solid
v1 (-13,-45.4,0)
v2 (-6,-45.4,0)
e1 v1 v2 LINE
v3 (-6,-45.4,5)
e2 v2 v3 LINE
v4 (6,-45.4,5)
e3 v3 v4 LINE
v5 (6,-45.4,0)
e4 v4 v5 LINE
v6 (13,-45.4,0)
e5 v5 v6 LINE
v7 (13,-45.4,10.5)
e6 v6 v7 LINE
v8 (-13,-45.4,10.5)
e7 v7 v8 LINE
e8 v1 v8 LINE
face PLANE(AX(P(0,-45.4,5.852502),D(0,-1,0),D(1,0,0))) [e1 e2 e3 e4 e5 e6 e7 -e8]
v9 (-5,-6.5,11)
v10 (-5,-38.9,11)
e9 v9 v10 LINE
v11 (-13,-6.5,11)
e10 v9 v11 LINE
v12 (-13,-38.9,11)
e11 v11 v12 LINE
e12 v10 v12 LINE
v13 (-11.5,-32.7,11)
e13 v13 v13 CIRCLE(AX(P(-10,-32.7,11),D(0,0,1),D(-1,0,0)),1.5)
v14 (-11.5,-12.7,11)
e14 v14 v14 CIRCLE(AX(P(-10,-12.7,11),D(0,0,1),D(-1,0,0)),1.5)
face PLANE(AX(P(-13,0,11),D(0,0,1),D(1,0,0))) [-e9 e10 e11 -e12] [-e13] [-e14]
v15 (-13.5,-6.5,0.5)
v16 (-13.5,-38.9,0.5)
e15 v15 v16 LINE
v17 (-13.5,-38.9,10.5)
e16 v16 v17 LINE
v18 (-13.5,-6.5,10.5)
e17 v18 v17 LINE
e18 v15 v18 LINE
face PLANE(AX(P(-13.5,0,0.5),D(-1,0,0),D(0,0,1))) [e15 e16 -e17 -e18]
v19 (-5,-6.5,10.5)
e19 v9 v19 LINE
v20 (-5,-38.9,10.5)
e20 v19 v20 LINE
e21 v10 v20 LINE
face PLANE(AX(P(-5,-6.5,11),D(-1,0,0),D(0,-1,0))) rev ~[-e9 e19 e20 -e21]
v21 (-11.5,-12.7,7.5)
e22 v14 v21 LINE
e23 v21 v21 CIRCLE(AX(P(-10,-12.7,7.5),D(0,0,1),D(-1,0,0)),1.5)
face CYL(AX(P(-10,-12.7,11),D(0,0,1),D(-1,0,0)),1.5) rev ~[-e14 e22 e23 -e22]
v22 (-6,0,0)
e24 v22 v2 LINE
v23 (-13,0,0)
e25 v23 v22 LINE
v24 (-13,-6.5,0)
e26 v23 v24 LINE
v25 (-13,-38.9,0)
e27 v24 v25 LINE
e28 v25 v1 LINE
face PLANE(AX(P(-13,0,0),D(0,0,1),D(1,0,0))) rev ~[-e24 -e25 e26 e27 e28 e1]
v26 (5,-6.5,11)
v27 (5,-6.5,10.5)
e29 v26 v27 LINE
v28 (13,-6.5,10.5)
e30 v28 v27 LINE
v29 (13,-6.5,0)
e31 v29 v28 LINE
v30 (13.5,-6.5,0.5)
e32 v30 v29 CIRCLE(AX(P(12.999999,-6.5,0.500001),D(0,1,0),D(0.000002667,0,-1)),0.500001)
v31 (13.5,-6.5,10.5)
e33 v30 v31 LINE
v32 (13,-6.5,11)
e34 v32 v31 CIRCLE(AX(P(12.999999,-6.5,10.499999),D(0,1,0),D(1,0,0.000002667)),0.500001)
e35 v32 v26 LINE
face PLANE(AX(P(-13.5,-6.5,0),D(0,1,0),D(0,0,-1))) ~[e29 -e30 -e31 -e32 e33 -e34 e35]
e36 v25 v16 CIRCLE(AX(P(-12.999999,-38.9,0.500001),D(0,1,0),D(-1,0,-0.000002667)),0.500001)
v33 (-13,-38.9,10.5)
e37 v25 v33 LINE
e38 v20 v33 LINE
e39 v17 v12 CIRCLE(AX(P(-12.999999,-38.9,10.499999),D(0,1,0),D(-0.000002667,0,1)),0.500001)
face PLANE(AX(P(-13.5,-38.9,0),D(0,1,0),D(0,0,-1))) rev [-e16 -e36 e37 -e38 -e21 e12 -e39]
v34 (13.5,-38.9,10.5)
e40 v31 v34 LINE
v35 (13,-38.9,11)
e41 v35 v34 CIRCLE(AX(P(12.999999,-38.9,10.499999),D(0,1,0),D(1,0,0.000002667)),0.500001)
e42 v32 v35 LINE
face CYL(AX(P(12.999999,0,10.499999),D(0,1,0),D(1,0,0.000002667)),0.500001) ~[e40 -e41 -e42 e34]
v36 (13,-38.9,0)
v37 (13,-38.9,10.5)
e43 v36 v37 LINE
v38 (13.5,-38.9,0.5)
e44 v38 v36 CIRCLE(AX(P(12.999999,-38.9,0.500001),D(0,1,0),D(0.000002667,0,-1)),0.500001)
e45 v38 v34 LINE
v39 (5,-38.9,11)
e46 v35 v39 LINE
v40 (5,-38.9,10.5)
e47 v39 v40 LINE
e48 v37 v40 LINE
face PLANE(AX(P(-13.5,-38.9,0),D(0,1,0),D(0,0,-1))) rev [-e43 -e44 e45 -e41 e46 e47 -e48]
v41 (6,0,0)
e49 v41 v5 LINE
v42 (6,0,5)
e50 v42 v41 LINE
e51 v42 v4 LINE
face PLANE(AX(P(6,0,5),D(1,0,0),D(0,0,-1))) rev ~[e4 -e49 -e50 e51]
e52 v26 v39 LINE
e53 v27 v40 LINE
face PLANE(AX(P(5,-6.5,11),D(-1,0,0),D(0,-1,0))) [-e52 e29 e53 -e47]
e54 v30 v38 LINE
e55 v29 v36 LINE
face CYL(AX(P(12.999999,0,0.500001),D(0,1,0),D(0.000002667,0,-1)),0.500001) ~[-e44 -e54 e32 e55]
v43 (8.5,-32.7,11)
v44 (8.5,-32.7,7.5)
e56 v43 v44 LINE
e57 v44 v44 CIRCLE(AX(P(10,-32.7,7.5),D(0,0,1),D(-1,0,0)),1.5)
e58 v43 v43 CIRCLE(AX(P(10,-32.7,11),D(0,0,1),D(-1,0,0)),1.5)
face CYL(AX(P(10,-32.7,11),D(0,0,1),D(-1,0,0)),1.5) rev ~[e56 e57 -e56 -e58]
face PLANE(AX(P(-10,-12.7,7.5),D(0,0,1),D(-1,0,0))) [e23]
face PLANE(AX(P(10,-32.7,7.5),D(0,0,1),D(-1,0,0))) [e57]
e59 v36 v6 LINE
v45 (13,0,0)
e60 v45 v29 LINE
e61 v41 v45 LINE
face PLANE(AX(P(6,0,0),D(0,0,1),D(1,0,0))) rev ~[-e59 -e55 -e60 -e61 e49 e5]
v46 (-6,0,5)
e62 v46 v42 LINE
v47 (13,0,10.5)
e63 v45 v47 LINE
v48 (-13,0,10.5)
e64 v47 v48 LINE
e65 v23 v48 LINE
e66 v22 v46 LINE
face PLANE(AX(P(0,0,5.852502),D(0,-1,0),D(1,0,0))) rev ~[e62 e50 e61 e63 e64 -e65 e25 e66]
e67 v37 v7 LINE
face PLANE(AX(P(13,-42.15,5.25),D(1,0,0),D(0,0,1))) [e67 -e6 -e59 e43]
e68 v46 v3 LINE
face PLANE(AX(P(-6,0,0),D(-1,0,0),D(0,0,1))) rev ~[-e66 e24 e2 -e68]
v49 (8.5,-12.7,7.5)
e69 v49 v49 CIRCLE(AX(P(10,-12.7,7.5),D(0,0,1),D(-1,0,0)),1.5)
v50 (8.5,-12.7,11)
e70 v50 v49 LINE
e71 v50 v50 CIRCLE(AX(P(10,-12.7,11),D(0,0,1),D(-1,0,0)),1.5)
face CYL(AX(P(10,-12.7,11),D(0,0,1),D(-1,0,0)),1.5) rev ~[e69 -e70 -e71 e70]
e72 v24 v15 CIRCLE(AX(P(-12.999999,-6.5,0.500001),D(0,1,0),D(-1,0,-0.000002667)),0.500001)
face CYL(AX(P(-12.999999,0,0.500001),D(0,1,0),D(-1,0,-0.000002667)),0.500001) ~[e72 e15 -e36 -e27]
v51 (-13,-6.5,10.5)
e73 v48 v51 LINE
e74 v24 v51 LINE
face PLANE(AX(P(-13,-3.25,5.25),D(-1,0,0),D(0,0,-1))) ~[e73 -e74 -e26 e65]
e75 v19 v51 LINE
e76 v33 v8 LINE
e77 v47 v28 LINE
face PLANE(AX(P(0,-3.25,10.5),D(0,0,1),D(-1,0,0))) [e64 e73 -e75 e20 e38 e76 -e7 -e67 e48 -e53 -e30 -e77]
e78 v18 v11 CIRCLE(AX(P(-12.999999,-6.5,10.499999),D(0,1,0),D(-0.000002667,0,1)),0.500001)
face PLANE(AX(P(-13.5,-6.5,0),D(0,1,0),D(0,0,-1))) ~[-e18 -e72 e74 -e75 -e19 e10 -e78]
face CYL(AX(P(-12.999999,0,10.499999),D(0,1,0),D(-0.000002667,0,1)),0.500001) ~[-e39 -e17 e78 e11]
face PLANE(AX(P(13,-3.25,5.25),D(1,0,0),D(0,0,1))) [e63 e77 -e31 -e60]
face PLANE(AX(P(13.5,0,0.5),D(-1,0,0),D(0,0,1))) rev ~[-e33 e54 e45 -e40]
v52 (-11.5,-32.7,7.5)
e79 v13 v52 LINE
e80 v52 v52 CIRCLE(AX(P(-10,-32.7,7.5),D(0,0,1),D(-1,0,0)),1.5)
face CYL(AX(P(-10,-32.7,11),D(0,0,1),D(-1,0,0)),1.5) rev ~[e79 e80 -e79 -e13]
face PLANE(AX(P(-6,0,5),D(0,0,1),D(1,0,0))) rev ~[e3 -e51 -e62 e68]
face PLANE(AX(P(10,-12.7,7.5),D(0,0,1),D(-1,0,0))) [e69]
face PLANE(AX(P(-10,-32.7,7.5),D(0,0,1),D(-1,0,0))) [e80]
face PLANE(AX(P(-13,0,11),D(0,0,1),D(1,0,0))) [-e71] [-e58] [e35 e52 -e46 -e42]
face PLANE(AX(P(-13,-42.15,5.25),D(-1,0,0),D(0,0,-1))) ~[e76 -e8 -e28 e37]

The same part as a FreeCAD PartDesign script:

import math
import FreeCAD as App
import Part
import Sketcher

V = App.Vector
Q = App.Units.Quantity


def add_polygon(sketch, points):
    """Adds a closed chain of lines whose ends are joined by coincident constraints."""
    first, n = sketch.GeometryCount, len(points)
    for a, b in zip(points, points[1:] + points[:1]):
        sketch.addGeometry(Part.LineSegment(App.Vector(*a, 0), App.Vector(*b, 0)), False)
    for i in range(n):
        sketch.addConstraint(Sketcher.Constraint("Coincident", first + i, 2, first + (i + 1) % n, 1))

doc = App.newDocument("Part")
body = doc.addObject("PartDesign::Body", "Body")

sketch1 = doc.addObject("Sketcher::SketchObject", "Sketch")
body.addObject(sketch1)
sketch1.AttachmentSupport = (doc.XZ_Plane, [""])
sketch1.MapMode = "FlatFace"
sketch1.addGeometry(Part.LineSegment(V(-13, 0, 0), V(-6, 0, 0)), False)
sketch1.addGeometry(Part.LineSegment(V(-6, 0, 0), V(-6, 5, 0)), False)
sketch1.addGeometry(Part.LineSegment(V(-6, 5, 0), V(6, 5, 0)), False)
sketch1.addGeometry(Part.LineSegment(V(6, 5, 0), V(6, 0, 0)), False)
sketch1.addGeometry(Part.LineSegment(V(6, 0, 0), V(13, 0, 0)), False)
sketch1.addGeometry(Part.ArcOfCircle(Part.Circle(V(13, 0.5, 0), V(0, 0, 1), 0.5), math.radians(-90), math.radians(0)), False)
sketch1.addGeometry(Part.LineSegment(V(13.5, 0.5, 0), V(13.5, 10.5, 0)), False)
sketch1.addGeometry(Part.ArcOfCircle(Part.Circle(V(13, 10.5, 0), V(0, 0, 1), 0.5), math.radians(0), math.radians(90)), False)
sketch1.addGeometry(Part.LineSegment(V(13, 11, 0), V(-13, 11, 0)), False)
sketch1.addGeometry(Part.ArcOfCircle(Part.Circle(V(-13, 10.5, 0), V(0, 0, 1), 0.5), math.radians(90), math.radians(180)), False)
sketch1.addGeometry(Part.LineSegment(V(-13.5, 10.5, 0), V(-13.5, 0.5, 0)), False)
sketch1.addGeometry(Part.ArcOfCircle(Part.Circle(V(-13, 0.5, 0), V(0, 0, 1), 0.5), math.radians(-180), math.radians(-90)), False)
sketch1.addConstraint(Sketcher.Constraint("Coincident", 0, 2, 1, 1))
sketch1.addConstraint(Sketcher.Constraint("Coincident", 1, 2, 2, 1))
sketch1.addConstraint(Sketcher.Constraint("Coincident", 2, 2, 3, 1))
sketch1.addConstraint(Sketcher.Constraint("Coincident", 3, 2, 4, 1))
sketch1.addConstraint(Sketcher.Constraint("Coincident", 4, 2, 5, 1))
sketch1.addConstraint(Sketcher.Constraint("Coincident", 5, 2, 6, 1))
sketch1.addConstraint(Sketcher.Constraint("Coincident", 6, 2, 7, 1))
sketch1.addConstraint(Sketcher.Constraint("Coincident", 7, 2, 8, 1))
sketch1.addConstraint(Sketcher.Constraint("Coincident", 8, 2, 9, 1))
sketch1.addConstraint(Sketcher.Constraint("Coincident", 9, 2, 10, 1))
sketch1.addConstraint(Sketcher.Constraint("Coincident", 10, 2, 11, 1))
sketch1.addConstraint(Sketcher.Constraint("Coincident", 11, 2, 0, 1))
sketch1.addConstraint(Sketcher.Constraint("Horizontal", 0))
sketch1.addConstraint(Sketcher.Constraint("Vertical", 1))
sketch1.addConstraint(Sketcher.Constraint("Horizontal", 2))
sketch1.addConstraint(Sketcher.Constraint("Vertical", 3))
sketch1.addConstraint(Sketcher.Constraint("Horizontal", 4))
sketch1.addConstraint(Sketcher.Constraint("Vertical", 6))
sketch1.addConstraint(Sketcher.Constraint("Horizontal", 8))
sketch1.addConstraint(Sketcher.Constraint("Vertical", 10))
sketch1.addConstraint(Sketcher.Constraint("Equal", 5, 7))
sketch1.addConstraint(Sketcher.Constraint("Equal", 7, 9))
sketch1.addConstraint(Sketcher.Constraint("Equal", 9, 11))
sketch1.addConstraint(Sketcher.Constraint("Symmetric", 0, 2, 3, 2, -1, 1))
sketch1.addConstraint(Sketcher.Constraint("Symmetric", 5, 3, 11, 3, -2))
sketch1.addConstraint(Sketcher.Constraint("Horizontal", 11, 3, 5, 2))
sketch1.addConstraint(Sketcher.Constraint("Horizontal", 9, 3, 6, 2))
sketch1.addConstraint(Sketcher.Constraint("Horizontal", 6, 2, 9, 2))
sketch1.addConstraint(Sketcher.Constraint("Horizontal", 5, 2, 10, 2))
sketch1.addConstraint(Sketcher.Constraint("Vertical", 7, 3, 4, 2))
sketch1.addConstraint(Sketcher.Constraint("Vertical", 4, 2, 7, 2))
sketch1.addConstraint(Sketcher.Constraint("Vertical", 11, 3, 8, 2))
sketch1.addConstraint(Sketcher.Constraint("Vertical", 8, 2, 11, 2))
sketch1.addConstraint(Sketcher.Constraint("Radius", 5, Q("0.500001 mm")))
sketch1.addConstraint(Sketcher.Constraint("DistanceX", 0, 1, 0, 2, Q("7 mm")))
sketch1.addConstraint(Sketcher.Constraint("DistanceX", 2, 1, 2, 2, Q("12 mm")))
sketch1.addConstraint(Sketcher.Constraint("DistanceY", 1, 1, 1, 2, Q("5 mm")))
sketch1.addConstraint(Sketcher.Constraint("DistanceY", 6, 1, 6, 2, Q("10 mm")))
pad1 = doc.addObject("PartDesign::Pad", "Pad")
body.addObject(pad1)
pad1.Profile = sketch1
pad1.Length = 45.4

sketch2 = doc.addObject("Sketcher::SketchObject", "Sketch001")
body.addObject(sketch2)
sketch2.AttachmentSupport = (doc.XY_Plane, [""])
sketch2.MapMode = "FlatFace"
sketch2.AttachmentOffset = App.Placement(V(0, 0, 11), App.Rotation())
sketch2.addGeometry(Part.Circle(V(10, -12.7, 0), V(0, 0, 1), 1.5), False)
sketch2.addGeometry(Part.Circle(V(-10, -12.7, 0), V(0, 0, 1), 1.5), False)
sketch2.addGeometry(Part.Circle(V(10, -32.7, 0), V(0, 0, 1), 1.5), False)
sketch2.addGeometry(Part.Circle(V(-10, -32.7, 0), V(0, 0, 1), 1.5), False)
sketch2.addConstraint(Sketcher.Constraint("Equal", 0, 1))
sketch2.addConstraint(Sketcher.Constraint("Equal", 1, 2))
sketch2.addConstraint(Sketcher.Constraint("Equal", 2, 3))
sketch2.addConstraint(Sketcher.Constraint("Symmetric", 0, 3, 1, 3, -2))
sketch2.addConstraint(Sketcher.Constraint("Symmetric", 2, 3, 3, 3, -2))
sketch2.addConstraint(Sketcher.Constraint("Vertical", 0, 3, 2, 3))
sketch2.addConstraint(Sketcher.Constraint("Diameter", 0, Q("3 mm")))
sketch2.addConstraint(Sketcher.Constraint("DistanceX", -1, 1, 0, 3, Q("10 mm")))
sketch2.addConstraint(Sketcher.Constraint("DistanceY", 2, 3, 0, 3, Q("20 mm")))
sketch2.addConstraint(Sketcher.Constraint("DistanceY", 0, 3, -1, 1, Q("12.7 mm")))
pocket1 = doc.addObject("PartDesign::Pocket", "Pocket")
body.addObject(pocket1)
pocket1.Profile = sketch2
pocket1.Length = 3.5

sketch3 = doc.addObject("Sketcher::SketchObject", "Sketch002")
body.addObject(sketch3)
sketch3.AttachmentSupport = (doc.XY_Plane, [""])
sketch3.MapMode = "FlatFace"
sketch3.AttachmentOffset = App.Placement(V(0, 0, 11), App.Rotation())
add_polygon(sketch3, [(14, -6), (14, 0), (-14, 0), (-14, -6)])
add_polygon(sketch3, [(14, -45), (14, -39), (-14, -39), (-14, -45)])
sketch3.addConstraint(Sketcher.Constraint("Vertical", 0))
sketch3.addConstraint(Sketcher.Constraint("Horizontal", 1))
sketch3.addConstraint(Sketcher.Constraint("Vertical", 2))
sketch3.addConstraint(Sketcher.Constraint("Horizontal", 3))
sketch3.addConstraint(Sketcher.Constraint("Vertical", 4))
sketch3.addConstraint(Sketcher.Constraint("Horizontal", 5))
sketch3.addConstraint(Sketcher.Constraint("Vertical", 6))
sketch3.addConstraint(Sketcher.Constraint("Horizontal", 7))
sketch3.addConstraint(Sketcher.Constraint("Symmetric", 0, 2, 1, 2, -1, 1))
sketch3.addConstraint(Sketcher.Constraint("Vertical", 3, 2, 4, 2))
sketch3.addConstraint(Sketcher.Constraint("Vertical", 2, 2, 5, 2))
sketch3.addConstraint(Sketcher.Constraint("Equal", 2, 4))
sketch3.addConstraint(Sketcher.Constraint("DistanceX", 1, 2, 1, 1, Q("27 mm")))
sketch3.addConstraint(Sketcher.Constraint("DistanceY", 0, 1, 0, 2, Q("6.5 mm")))
sketch3.addConstraint(Sketcher.Constraint("DistanceY", 4, 2, -1, 1, Q("38.9 mm")))
pocket2 = doc.addObject("PartDesign::Pocket", "Pocket001")
body.addObject(pocket2)
pocket2.Profile = sketch3
pocket2.Length = 0.5

sketch4 = doc.addObject("Sketcher::SketchObject", "Sketch003")
body.addObject(sketch4)
sketch4.AttachmentSupport = (doc.YZ_Plane, [""])
sketch4.MapMode = "FlatFace"
sketch4.AttachmentOffset = App.Placement(V(0, 0, 13.5), App.Rotation())
add_polygon(sketch4, [(-45, 0), (-39, 0), (-39, 10), (-45, 10)])
add_polygon(sketch4, [(-6, 0), (0, 0), (0, 10), (-6, 10)])
sketch4.addConstraint(Sketcher.Constraint("Horizontal", 0))
sketch4.addConstraint(Sketcher.Constraint("Vertical", 1))
sketch4.addConstraint(Sketcher.Constraint("Horizontal", 2))
sketch4.addConstraint(Sketcher.Constraint("Vertical", 3))
sketch4.addConstraint(Sketcher.Constraint("Horizontal", 4))
sketch4.addConstraint(Sketcher.Constraint("Vertical", 5))
sketch4.addConstraint(Sketcher.Constraint("Horizontal", 6))
sketch4.addConstraint(Sketcher.Constraint("Vertical", 7))
sketch4.addConstraint(Sketcher.Constraint("Coincident", 4, 2, -1, 1))
sketch4.addConstraint(Sketcher.Constraint("PointOnObject", 0, 2, -1))
sketch4.addConstraint(Sketcher.Constraint("Horizontal", 2, 2, 5, 2))
sketch4.addConstraint(Sketcher.Constraint("Equal", 2, 4))
sketch4.addConstraint(Sketcher.Constraint("DistanceX", 0, 1, 0, 2, Q("6.5 mm")))
sketch4.addConstraint(Sketcher.Constraint("DistanceY", 1, 1, 1, 2, Q("10.5 mm")))
sketch4.addConstraint(Sketcher.Constraint("DistanceX", 0, 2, -1, 1, Q("38.9 mm")))
pocket3 = doc.addObject("PartDesign::Pocket", "Pocket002")
body.addObject(pocket3)
pocket3.Profile = sketch4
pocket3.Length = 0.5
doc.recompute()

mirrored = doc.addObject("PartDesign::Mirrored", "Mirrored")
body.addObject(mirrored)
mirrored.Originals = [pocket3]
mirrored.MirrorPlane = (doc.YZ_Plane, [""])
body.Tip = mirrored

sketch5 = doc.addObject("Sketcher::SketchObject", "Sketch004")
body.addObject(sketch5)
sketch5.AttachmentSupport = (doc.XY_Plane, [""])
sketch5.MapMode = "FlatFace"
sketch5.AttachmentOffset = App.Placement(V(0, 0, 11), App.Rotation())
add_polygon(sketch5, [(5, -39), (5, -6), (-5, -6), (-5, -39)])
sketch5.addConstraint(Sketcher.Constraint("Vertical", 0))
sketch5.addConstraint(Sketcher.Constraint("Horizontal", 1))
sketch5.addConstraint(Sketcher.Constraint("Vertical", 2))
sketch5.addConstraint(Sketcher.Constraint("Horizontal", 3))
sketch5.addConstraint(Sketcher.Constraint("DistanceX", 1, 2, 1, 1, Q("10 mm")))
sketch5.addConstraint(Sketcher.Constraint("DistanceY", 0, 1, 0, 2, Q("32.4 mm")))
sketch5.addConstraint(Sketcher.Constraint("DistanceX", -1, 1, 0, 2, Q("5 mm")))
sketch5.addConstraint(Sketcher.Constraint("DistanceY", 0, 2, -1, 1, Q("6.5 mm")))
pocket4 = doc.addObject("PartDesign::Pocket", "Pocket003")
body.addObject(pocket4)
pocket4.Profile = sketch5
pocket4.Length = 0.5

doc.recompute()
